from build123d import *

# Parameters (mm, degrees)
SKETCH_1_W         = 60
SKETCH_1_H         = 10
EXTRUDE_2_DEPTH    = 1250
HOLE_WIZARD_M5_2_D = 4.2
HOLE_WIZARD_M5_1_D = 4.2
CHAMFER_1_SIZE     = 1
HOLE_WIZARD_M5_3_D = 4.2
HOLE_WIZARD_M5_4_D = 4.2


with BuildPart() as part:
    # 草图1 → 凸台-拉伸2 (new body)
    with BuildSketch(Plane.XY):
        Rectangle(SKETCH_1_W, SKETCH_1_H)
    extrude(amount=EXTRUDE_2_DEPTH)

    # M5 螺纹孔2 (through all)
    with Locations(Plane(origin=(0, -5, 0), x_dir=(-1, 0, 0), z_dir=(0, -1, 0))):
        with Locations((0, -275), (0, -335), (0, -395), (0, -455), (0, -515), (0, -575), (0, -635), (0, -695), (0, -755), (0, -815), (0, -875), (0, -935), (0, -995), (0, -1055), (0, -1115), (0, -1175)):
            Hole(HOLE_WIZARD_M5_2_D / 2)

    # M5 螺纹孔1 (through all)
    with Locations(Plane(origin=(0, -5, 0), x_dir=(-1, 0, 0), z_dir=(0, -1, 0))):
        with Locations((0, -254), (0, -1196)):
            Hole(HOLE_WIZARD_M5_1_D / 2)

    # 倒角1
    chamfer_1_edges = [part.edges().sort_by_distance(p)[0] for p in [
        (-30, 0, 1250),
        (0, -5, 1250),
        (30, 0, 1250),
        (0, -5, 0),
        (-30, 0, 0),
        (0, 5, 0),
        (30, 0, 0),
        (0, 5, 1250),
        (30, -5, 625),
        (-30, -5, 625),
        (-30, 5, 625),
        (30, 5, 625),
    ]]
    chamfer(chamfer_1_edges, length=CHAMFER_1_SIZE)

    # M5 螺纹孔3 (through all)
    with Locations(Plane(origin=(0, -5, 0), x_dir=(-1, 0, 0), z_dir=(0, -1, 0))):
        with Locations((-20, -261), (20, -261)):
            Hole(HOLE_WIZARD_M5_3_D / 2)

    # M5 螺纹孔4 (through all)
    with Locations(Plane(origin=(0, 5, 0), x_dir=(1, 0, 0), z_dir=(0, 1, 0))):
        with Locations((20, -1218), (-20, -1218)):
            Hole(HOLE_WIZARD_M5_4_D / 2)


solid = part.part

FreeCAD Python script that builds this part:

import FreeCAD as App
import Part
import Sketcher

V = App.Vector


def edges_at(feature, points):
    """Names of the edges that pass closest to the given points."""
    edges = feature.Shape.Edges
    near = lambda p: min(range(len(edges)), key=lambda i: edges[i].distToShape(Part.Vertex(*p))[0])
    return sorted({f"Edge{near(p) + 1}" for p in points})


def add_polygon(sketch, points):
    """Adds a closed chain of lines whose ends are joined by coincident constraints."""
    first, n = sketch.GeometryCount, len(points)
    for a, b in zip(points, points[1:] + points[:1]):
        sketch.addGeometry(Part.LineSegment(App.Vector(*a, 0), App.Vector(*b, 0)), False)
    for i in range(n):
        sketch.addConstraint(Sketcher.Constraint("Coincident", first + i, 2, first + (i + 1) % n, 1))

doc = App.newDocument("Part")
params = doc.addObject("Spreadsheet::Sheet", "Params")
for row, (alias, value) in enumerate([
    ("sketch1_width", "60 mm"),
    ("sketch1_height", "10 mm"),
    ("pad1_length", "1250 mm"),
    ("sketch2_diameter", "4.2 mm"),
    ("hole_diameter", "4.2 mm"),
    ("sketch3_diameter", "4.2 mm"),
    ("hole2_diameter", "4.2 mm"),
    ("chamfer_size", "1 mm"),
    ("sketch4_diameter", "4.2 mm"),
    ("hole3_diameter", "4.2 mm"),
    ("sketch5_diameter", "4.2 mm"),
    ("hole4_diameter", "4.2 mm"),
], start=1):
    params.set(f"A{row}", alias)
    params.set(f"B{row}", "=" + value)
    params.setAlias(f"B{row}", alias)

body = doc.addObject("PartDesign::Body", "Body")

# Sketch on XY plane
sketch1 = body.newObject("Sketcher::SketchObject", "Sketch")
sketch1.AttachmentSupport = (doc.getObject("XY_Plane"), [""])
sketch1.MapMode = "FlatFace"
add_polygon(sketch1, [(-30, 5), (-30, -5), (30, -5), (30, 5)])  # lines 0-3
sketch1.addConstraint([
    Sketcher.Constraint("Vertical", 0),
    Sketcher.Constraint("Horizontal", 1),
    Sketcher.Constraint("Vertical", 2),
    Sketcher.Constraint("Horizontal", 3),
    Sketcher.Constraint("Symmetric", 0, 2, 2, 2, -1, 1),
    Sketcher.Constraint("DistanceX", 1, 1, 1, 2, 60.0),
    Sketcher.Constraint("DistanceY", 0, 2, 0, 1, 10.0),
])
sketch1.setExpression("Constraints[9]", "Params.sketch1_width")
sketch1.setExpression("Constraints[10]", "Params.sketch1_height")
pad1 = body.newObject("PartDesign::Pad", "Pad")
pad1.Profile = sketch1
pad1.setExpression("Length", "Params.pad1_length")

# Sketch on XZ plane
sketch2 = body.newObject("Sketcher::SketchObject", "Sketch001")
sketch2.AttachmentSupport = (doc.getObject("XZ_Plane"), [""])
sketch2.MapMode = "FlatFace"
sketch2.AttachmentOffset = App.Placement(V(0, 0, 5), App.Rotation())
sketch2.addGeometry([
    Part.Circle(V(0, 275, 0), V(0, 0, 1), 2.1),  # 0
    Part.Circle(V(0, 335, 0), V(0, 0, 1), 2.1),  # 1
    Part.Circle(V(0, 395, 0), V(0, 0, 1), 2.1),  # 2
    Part.Circle(V(0, 455, 0), V(0, 0, 1), 2.1),  # 3
    Part.Circle(V(0, 515, 0), V(0, 0, 1), 2.1),  # 4
    Part.Circle(V(0, 575, 0), V(0, 0, 1), 2.1),  # 5
    Part.Circle(V(0, 635, 0), V(0, 0, 1), 2.1),  # 6
    Part.Circle(V(0, 695, 0), V(0, 0, 1), 2.1),  # 7
    Part.Circle(V(0, 755, 0), V(0, 0, 1), 2.1),  # 8
    Part.Circle(V(0, 815, 0), V(0, 0, 1), 2.1),  # 9
    Part.Circle(V(0, 875, 0), V(0, 0, 1), 2.1),  # 10
    Part.Circle(V(0, 935, 0), V(0, 0, 1), 2.1),  # 11
    Part.Circle(V(0, 995, 0), V(0, 0, 1), 2.1),  # 12
    Part.Circle(V(0, 1055, 0), V(0, 0, 1), 2.1),  # 13
    Part.Circle(V(0, 1115, 0), V(0, 0, 1), 2.1),  # 14
    Part.Circle(V(0, 1175, 0), V(0, 0, 1), 2.1),  # 15
], False)
sketch2.addConstraint([
    Sketcher.Constraint("Equal", 0, 1),
    Sketcher.Constraint("Equal", 1, 2),
    Sketcher.Constraint("Equal", 2, 3),
    Sketcher.Constraint("Equal", 3, 4),
    Sketcher.Constraint("Equal", 4, 5),
    Sketcher.Constraint("Equal", 5, 6),
    Sketcher.Constraint("Equal", 6, 7),
    Sketcher.Constraint("Equal", 7, 8),
    Sketcher.Constraint("Equal", 8, 9),
    Sketcher.Constraint("Equal", 9, 10),
    Sketcher.Constraint("Equal", 10, 11),
    Sketcher.Constraint("Equal", 11, 12),
    Sketcher.Constraint("Equal", 12, 13),
    Sketcher.Constraint("Equal", 13, 14),
    Sketcher.Constraint("Equal", 14, 15),
    Sketcher.Constraint("PointOnObject", 0, 3, -2),
    Sketcher.Constraint("PointOnObject", 1, 3, -2),
    Sketcher.Constraint("PointOnObject", 2, 3, -2),
    Sketcher.Constraint("PointOnObject", 3, 3, -2),
    Sketcher.Constraint("PointOnObject", 4, 3, -2),
    Sketcher.Constraint("PointOnObject", 5, 3, -2),
    Sketcher.Constraint("PointOnObject", 6, 3, -2),
    Sketcher.Constraint("PointOnObject", 7, 3, -2),
    Sketcher.Constraint("PointOnObject", 8, 3, -2),
    Sketcher.Constraint("PointOnObject", 9, 3, -2),
    Sketcher.Constraint("PointOnObject", 10, 3, -2),
    Sketcher.Constraint("PointOnObject", 11, 3, -2),
    Sketcher.Constraint("PointOnObject", 12, 3, -2),
    Sketcher.Constraint("PointOnObject", 13, 3, -2),
    Sketcher.Constraint("PointOnObject", 14, 3, -2),
    Sketcher.Constraint("PointOnObject", 15, 3, -2),
    Sketcher.Constraint("Diameter", 0, 4.2),
    Sketcher.Constraint("DistanceY", -1, 1, 0, 3, 275.0),
    Sketcher.Constraint("DistanceY", -1, 1, 1, 3, 335.0),
    Sketcher.Constraint("DistanceY", -1, 1, 2, 3, 395.0),
    Sketcher.Constraint("DistanceY", -1, 1, 3, 3, 455.0),
    Sketcher.Constraint("DistanceY", -1, 1, 4, 3, 515.0),
    Sketcher.Constraint("DistanceY", -1, 1, 5, 3, 575.0),
    Sketcher.Constraint("DistanceY", -1, 1, 6, 3, 635.0),
    Sketcher.Constraint("DistanceY", -1, 1, 7, 3, 695.0),
    Sketcher.Constraint("DistanceY", -1, 1, 8, 3, 755.0),
    Sketcher.Constraint("DistanceY", -1, 1, 9, 3, 815.0),
    Sketcher.Constraint("DistanceY", -1, 1, 10, 3, 875.0),
    Sketcher.Constraint("DistanceY", -1, 1, 11, 3, 935.0),
    Sketcher.Constraint("DistanceY", -1, 1, 12, 3, 995.0),
    Sketcher.Constraint("DistanceY", -1, 1, 13, 3, 1055.0),
    Sketcher.Constraint("DistanceY", -1, 1, 14, 3, 1115.0),
    Sketcher.Constraint("DistanceY", -1, 1, 15, 3, 1175.0),
])
sketch2.setExpression("Constraints[31]", "Params.sketch2_diameter")
doc.recompute()
hole = body.newObject("PartDesign::Hole", "Hole")
hole.Profile = sketch2
hole.ThreadType = "None"
hole.setExpression("Diameter", "Params.hole_diameter")
hole.DepthType = "ThroughAll"

# Sketch on XZ plane
sketch3 = body.newObject("Sketcher::SketchObject", "Sketch002")
sketch3.AttachmentSupport = (doc.getObject("XZ_Plane"), [""])
sketch3.MapMode = "FlatFace"
sketch3.AttachmentOffset = App.Placement(V(0, 0, 5), App.Rotation())
sketch3.addGeometry([
    Part.Circle(V(0, 254, 0), V(0, 0, 1), 2.1),
    Part.Circle(V(0, 1196, 0), V(0, 0, 1), 2.1),
], False)
sketch3.addConstraint([
    Sketcher.Constraint("Equal", 0, 1),
    Sketcher.Constraint("PointOnObject", 0, 3, -2),
    Sketcher.Constraint("PointOnObject", 1, 3, -2),
    Sketcher.Constraint("Diameter", 0, 4.2),
    Sketcher.Constraint("DistanceY", -1, 1, 0, 3, 254.0),
    Sketcher.Constraint("DistanceY", -1, 1, 1, 3, 1196.0),
])
sketch3.setExpression("Constraints[3]", "Params.sketch3_diameter")
doc.recompute()
hole2 = body.newObject("PartDesign::Hole", "Hole001")
hole2.Profile = sketch3
hole2.ThreadType = "None"
hole2.setExpression("Diameter", "Params.hole2_diameter")
hole2.DepthType = "ThroughAll"
doc.recompute()

chamfer = body.newObject("PartDesign::Chamfer", "Chamfer")
chamfer.Base = (hole2, edges_at(hole2, [
    (-30, 0, 1250),
    (0, -5, 1250),
    (30, 0, 1250),
    (0, -5, 0),
    (-30, 0, 0),
    (0, 5, 0),
    (30, 0, 0),
    (0, 5, 1250),
    (30, -5, 625),
    (-30, -5, 625),
    (-30, 5, 625),
    (30, 5, 625),
]))
chamfer.setExpression("Size", "Params.chamfer_size")

# Sketch on XZ plane
sketch4 = body.newObject("Sketcher::SketchObject", "Sketch003")
sketch4.AttachmentSupport = (doc.getObject("XZ_Plane"), [""])
sketch4.MapMode = "FlatFace"
sketch4.AttachmentOffset = App.Placement(V(0, 0, 5), App.Rotation())
sketch4.addGeometry([
    Part.Circle(V(20, 261, 0), V(0, 0, 1), 2.1),
    Part.Circle(V(-20, 261, 0), V(0, 0, 1), 2.1),
], False)
sketch4.addConstraint([
    Sketcher.Constraint("Equal", 0, 1),
    Sketcher.Constraint("Symmetric", 0, 3, 1, 3, -2),
    Sketcher.Constraint("Diameter", 0, 4.2),
    Sketcher.Constraint("DistanceX", -1, 1, 0, 3, 20.0),
    Sketcher.Constraint("DistanceY", -1, 1, 0, 3, 261.0),
])
sketch4.setExpression("Constraints[2]", "Params.sketch4_diameter")
doc.recompute()
hole3 = body.newObject("PartDesign::Hole", "Hole002")
hole3.Profile = sketch4
hole3.ThreadType = "None"
hole3.setExpression("Diameter", "Params.hole3_diameter")
hole3.DepthType = "ThroughAll"

# Sketch on XZ plane
sketch5 = body.newObject("Sketcher::SketchObject", "Sketch004")
sketch5.AttachmentSupport = (doc.getObject("XZ_Plane"), [""])
sketch5.MapMode = "FlatFace"
sketch5.AttachmentOffset = App.Placement(V(0, 0, -5), App.Rotation())
sketch5.addGeometry([
    Part.Circle(V(20, 1218, 0), V(0, 0, 1), 2.1),
    Part.Circle(V(-20, 1218, 0), V(0, 0, 1), 2.1),
], False)
sketch5.addConstraint([
    Sketcher.Constraint("Equal", 0, 1),
    Sketcher.Constraint("Symmetric", 0, 3, 1, 3, -2),
    Sketcher.Constraint("Diameter", 0, 4.2),
    Sketcher.Constraint("DistanceX", -1, 1, 0, 3, 20.0),
    Sketcher.Constraint("DistanceY", -1, 1, 0, 3, 1218.0),
])
sketch5.setExpression("Constraints[2]", "Params.sketch5_diameter")
doc.recompute()
hole4 = body.newObject("PartDesign::Hole", "Hole003")
hole4.Profile = sketch5
hole4.ThreadType = "None"
hole4.setExpression("Diameter", "Params.hole4_diameter")
hole4.DepthType = "ThroughAll"
hole4.Reversed = True

doc.recompute()
